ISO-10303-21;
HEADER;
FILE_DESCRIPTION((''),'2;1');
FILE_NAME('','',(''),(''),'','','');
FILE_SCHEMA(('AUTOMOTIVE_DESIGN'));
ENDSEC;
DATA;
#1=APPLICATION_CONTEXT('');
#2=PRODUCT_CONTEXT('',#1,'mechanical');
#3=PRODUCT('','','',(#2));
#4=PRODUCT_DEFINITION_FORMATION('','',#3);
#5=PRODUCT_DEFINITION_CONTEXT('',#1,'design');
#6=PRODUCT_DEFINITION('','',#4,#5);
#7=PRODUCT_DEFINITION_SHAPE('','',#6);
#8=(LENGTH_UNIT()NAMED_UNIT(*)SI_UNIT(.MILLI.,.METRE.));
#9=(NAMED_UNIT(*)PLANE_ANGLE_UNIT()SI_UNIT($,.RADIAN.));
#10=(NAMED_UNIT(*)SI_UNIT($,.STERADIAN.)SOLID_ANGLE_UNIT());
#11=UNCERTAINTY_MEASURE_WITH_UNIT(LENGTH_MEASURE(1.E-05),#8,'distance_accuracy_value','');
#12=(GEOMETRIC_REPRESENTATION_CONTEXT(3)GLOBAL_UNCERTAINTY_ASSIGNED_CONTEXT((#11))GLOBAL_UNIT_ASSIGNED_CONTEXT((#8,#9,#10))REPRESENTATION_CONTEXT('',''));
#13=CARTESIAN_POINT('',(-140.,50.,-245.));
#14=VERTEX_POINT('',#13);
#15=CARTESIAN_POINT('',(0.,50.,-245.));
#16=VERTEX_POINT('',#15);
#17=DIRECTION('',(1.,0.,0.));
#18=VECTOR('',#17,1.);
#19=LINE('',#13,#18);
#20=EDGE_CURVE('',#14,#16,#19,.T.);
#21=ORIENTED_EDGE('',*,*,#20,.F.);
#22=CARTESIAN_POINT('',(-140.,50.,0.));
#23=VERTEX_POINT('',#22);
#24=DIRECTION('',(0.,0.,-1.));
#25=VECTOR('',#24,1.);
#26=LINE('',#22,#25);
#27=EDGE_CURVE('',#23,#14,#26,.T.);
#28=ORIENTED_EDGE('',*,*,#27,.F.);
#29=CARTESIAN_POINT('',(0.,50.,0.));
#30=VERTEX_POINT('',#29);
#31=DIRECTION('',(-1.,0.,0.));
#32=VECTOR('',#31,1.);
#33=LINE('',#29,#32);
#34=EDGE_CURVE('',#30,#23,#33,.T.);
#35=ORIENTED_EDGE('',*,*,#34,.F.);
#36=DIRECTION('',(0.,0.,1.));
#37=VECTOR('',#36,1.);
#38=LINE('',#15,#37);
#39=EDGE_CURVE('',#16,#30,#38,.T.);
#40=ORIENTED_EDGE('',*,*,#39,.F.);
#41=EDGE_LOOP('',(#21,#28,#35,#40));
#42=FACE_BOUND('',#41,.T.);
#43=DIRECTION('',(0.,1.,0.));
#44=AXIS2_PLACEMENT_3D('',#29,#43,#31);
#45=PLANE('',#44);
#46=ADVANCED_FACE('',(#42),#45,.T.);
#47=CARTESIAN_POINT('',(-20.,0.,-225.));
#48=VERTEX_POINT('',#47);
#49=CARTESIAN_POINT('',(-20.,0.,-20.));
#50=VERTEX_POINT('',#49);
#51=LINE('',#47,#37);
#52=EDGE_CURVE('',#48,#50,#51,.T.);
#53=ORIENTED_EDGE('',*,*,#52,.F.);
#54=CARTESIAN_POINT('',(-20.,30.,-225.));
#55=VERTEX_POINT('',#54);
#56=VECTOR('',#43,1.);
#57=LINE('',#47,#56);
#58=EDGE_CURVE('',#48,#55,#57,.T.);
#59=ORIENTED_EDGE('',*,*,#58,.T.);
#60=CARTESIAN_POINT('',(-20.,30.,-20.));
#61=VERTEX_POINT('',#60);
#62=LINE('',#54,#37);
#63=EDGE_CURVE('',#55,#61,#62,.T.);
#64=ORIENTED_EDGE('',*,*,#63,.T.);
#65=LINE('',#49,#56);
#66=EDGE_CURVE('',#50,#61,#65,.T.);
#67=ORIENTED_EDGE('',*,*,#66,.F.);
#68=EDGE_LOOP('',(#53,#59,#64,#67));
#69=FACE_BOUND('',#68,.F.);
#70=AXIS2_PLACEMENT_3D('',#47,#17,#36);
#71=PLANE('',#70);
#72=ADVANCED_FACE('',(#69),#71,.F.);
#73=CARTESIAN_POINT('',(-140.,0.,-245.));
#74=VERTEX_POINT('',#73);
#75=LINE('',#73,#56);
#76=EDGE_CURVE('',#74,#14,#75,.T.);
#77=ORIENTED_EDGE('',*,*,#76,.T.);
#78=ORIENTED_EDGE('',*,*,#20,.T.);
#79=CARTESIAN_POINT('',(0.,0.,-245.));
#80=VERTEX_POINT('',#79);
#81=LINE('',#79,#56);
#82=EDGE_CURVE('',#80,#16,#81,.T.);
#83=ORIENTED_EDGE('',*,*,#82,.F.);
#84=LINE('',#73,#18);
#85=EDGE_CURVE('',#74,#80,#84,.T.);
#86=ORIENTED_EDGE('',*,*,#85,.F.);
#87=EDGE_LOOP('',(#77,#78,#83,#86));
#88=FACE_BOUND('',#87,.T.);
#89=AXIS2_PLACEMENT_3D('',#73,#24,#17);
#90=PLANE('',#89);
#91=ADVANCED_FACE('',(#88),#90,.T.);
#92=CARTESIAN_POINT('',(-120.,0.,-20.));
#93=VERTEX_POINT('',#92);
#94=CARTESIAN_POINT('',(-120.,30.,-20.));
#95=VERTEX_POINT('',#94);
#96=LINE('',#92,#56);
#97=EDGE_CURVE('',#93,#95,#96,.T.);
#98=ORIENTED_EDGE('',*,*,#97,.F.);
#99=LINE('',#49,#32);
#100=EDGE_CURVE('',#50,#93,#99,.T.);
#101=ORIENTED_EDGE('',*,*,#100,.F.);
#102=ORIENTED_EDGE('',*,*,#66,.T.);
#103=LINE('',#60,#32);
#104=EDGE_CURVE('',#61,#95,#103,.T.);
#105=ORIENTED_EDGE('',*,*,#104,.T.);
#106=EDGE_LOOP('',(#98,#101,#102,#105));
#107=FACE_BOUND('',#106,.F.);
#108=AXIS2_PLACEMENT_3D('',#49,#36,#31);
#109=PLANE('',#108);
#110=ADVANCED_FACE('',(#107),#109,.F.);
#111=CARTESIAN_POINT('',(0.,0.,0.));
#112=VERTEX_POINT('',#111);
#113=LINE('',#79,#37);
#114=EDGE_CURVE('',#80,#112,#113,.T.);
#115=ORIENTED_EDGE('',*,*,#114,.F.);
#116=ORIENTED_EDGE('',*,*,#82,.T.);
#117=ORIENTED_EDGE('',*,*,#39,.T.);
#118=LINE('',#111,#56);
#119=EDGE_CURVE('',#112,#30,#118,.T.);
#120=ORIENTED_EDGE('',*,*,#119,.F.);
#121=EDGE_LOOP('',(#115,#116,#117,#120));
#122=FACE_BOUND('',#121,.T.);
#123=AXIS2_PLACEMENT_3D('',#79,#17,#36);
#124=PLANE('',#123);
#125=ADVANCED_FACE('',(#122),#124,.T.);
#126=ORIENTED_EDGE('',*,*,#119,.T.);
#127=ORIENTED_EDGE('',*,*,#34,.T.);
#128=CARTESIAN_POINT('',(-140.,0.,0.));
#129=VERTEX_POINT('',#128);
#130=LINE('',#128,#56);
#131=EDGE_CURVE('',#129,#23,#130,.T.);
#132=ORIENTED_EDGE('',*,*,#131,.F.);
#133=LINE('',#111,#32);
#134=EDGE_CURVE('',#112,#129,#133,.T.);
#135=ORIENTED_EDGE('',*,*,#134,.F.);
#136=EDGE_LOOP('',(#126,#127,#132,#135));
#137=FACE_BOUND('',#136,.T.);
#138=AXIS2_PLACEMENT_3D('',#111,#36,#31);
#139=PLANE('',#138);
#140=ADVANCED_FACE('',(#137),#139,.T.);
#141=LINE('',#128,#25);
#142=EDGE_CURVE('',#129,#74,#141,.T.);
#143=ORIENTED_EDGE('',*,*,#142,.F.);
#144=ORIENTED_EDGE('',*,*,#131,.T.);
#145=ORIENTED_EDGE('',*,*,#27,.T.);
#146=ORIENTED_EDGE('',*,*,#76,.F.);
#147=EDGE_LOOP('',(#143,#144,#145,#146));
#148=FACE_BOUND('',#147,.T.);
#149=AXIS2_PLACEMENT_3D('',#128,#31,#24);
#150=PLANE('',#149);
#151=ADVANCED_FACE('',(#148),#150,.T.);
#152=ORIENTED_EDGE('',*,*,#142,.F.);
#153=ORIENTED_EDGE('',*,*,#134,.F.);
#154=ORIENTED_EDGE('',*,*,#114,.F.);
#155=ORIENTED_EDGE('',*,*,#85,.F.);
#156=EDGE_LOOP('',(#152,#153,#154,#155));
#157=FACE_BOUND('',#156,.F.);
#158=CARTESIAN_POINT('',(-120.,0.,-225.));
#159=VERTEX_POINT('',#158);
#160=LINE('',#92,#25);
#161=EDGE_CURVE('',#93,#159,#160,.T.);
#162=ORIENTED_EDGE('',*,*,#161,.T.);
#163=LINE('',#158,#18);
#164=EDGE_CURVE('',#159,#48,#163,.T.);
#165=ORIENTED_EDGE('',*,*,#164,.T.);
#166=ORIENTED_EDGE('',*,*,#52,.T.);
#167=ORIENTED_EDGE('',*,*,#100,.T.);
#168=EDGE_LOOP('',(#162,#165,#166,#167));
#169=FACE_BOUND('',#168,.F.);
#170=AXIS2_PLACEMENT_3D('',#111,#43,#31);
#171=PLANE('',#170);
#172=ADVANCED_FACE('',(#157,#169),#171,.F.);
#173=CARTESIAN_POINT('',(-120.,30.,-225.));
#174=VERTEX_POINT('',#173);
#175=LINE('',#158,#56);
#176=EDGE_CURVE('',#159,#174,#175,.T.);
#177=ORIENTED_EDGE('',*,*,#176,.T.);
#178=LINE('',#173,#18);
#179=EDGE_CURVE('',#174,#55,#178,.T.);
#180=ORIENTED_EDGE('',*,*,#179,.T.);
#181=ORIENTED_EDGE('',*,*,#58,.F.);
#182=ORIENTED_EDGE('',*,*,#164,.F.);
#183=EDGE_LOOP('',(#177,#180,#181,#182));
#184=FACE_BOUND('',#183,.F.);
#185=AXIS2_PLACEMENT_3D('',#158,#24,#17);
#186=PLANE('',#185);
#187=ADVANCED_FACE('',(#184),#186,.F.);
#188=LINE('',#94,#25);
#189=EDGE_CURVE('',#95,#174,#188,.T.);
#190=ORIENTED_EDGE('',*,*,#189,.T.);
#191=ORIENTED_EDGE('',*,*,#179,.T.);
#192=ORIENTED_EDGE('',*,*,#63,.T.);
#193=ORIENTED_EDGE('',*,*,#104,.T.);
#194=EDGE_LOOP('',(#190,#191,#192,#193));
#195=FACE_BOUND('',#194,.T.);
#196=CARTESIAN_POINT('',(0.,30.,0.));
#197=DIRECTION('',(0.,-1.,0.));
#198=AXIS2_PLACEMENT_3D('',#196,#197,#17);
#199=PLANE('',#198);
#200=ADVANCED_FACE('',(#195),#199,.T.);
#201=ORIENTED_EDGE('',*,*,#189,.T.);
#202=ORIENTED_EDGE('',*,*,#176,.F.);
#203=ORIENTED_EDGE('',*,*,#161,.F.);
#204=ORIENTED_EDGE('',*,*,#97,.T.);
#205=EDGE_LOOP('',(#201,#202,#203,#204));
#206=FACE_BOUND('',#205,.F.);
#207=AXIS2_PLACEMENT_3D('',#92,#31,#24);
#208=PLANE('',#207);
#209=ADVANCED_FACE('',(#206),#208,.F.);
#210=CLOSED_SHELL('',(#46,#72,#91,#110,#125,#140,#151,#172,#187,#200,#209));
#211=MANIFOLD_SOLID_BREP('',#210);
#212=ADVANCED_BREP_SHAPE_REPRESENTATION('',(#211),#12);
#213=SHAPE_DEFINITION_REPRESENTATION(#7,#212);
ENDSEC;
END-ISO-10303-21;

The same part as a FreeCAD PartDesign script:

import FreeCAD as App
import Part
import Sketcher

doc = App.newDocument("Part")
body = doc.addObject("PartDesign::Body", "Body")

# Sketch on XZ plane
sketch1 = doc.addObject("Sketcher::SketchObject", "Sketch")
body.addObject(sketch1)
sketch1.AttachmentSupport = (doc.XZ_Plane, [""])
sketch1.MapMode = "FlatFace"
sketch1.addGeometry([
    Part.LineSegment(App.Vector(-140, 0, 0), App.Vector(0, 0, 0)),
    Part.LineSegment(App.Vector(0, 0, 0), App.Vector(0, -245, 0)),
    Part.LineSegment(App.Vector(0, -245, 0), App.Vector(-140, -245, 0)),
    Part.LineSegment(App.Vector(-140, -245, 0), App.Vector(-140, 0, 0)),
], False)
sketch1.addConstraint([
    Sketcher.Constraint("Coincident", 0, 2, 1, 1),
    Sketcher.Constraint("Coincident", 1, 2, 2, 1),
    Sketcher.Constraint("Coincident", 2, 2, 3, 1),
    Sketcher.Constraint("Coincident", 3, 2, 0, 1),
    Sketcher.Constraint("Horizontal", 0),
    Sketcher.Constraint("Vertical", 1),
    Sketcher.Constraint("Horizontal", 2),
    Sketcher.Constraint("Vertical", 3),
    Sketcher.Constraint("Coincident", 0, 2, -1, 1),
    Sketcher.Constraint("DistanceX", 0, 1, 0, 2, 140.0),
    Sketcher.Constraint("DistanceY", 1, 2, 1, 1, 245.0),
])
pad1 = doc.addObject("PartDesign::Pad", "Pad")
body.addObject(pad1)
pad1.Profile = sketch1
pad1.Length = 50
pad1.Reversed = True

# Sketch on XZ plane
sketch2 = doc.addObject("Sketcher::SketchObject", "Sketch001")
body.addObject(sketch2)
sketch2.AttachmentSupport = (doc.XZ_Plane, [""])
sketch2.MapMode = "FlatFace"
sketch2.addGeometry([
    Part.LineSegment(App.Vector(-20, -225, 0), App.Vector(-20, -20, 0)),
    Part.LineSegment(App.Vector(-20, -20, 0), App.Vector(-120, -20, 0)),
    Part.LineSegment(App.Vector(-120, -20, 0), App.Vector(-120, -225, 0)),
    Part.LineSegment(App.Vector(-120, -225, 0), App.Vector(-20, -225, 0)),
], False)
sketch2.addConstraint([
    Sketcher.Constraint("Coincident", 0, 2, 1, 1),
    Sketcher.Constraint("Coincident", 1, 2, 2, 1),
    Sketcher.Constraint("Coincident", 2, 2, 3, 1),
    Sketcher.Constraint("Coincident", 3, 2, 0, 1),
    Sketcher.Constraint("Vertical", 0),
    Sketcher.Constraint("Horizontal", 1),
    Sketcher.Constraint("Vertical", 2),
    Sketcher.Constraint("Horizontal", 3),
    Sketcher.Constraint("DistanceX", 0, 2, -1, 1, 20.0),
    Sketcher.Constraint("DistanceY", 0, 2, -1, 1, 20.0),
    Sketcher.Constraint("DistanceX", 1, 2, 1, 1, 100.0),
    Sketcher.Constraint("DistanceY", 0, 1, 0, 2, 205.0),
])
pocket1 = doc.addObject("PartDesign::Pocket", "Pocket")
body.addObject(pocket1)
pocket1.Profile = sketch2
pocket1.Length = 30

doc.recompute()
